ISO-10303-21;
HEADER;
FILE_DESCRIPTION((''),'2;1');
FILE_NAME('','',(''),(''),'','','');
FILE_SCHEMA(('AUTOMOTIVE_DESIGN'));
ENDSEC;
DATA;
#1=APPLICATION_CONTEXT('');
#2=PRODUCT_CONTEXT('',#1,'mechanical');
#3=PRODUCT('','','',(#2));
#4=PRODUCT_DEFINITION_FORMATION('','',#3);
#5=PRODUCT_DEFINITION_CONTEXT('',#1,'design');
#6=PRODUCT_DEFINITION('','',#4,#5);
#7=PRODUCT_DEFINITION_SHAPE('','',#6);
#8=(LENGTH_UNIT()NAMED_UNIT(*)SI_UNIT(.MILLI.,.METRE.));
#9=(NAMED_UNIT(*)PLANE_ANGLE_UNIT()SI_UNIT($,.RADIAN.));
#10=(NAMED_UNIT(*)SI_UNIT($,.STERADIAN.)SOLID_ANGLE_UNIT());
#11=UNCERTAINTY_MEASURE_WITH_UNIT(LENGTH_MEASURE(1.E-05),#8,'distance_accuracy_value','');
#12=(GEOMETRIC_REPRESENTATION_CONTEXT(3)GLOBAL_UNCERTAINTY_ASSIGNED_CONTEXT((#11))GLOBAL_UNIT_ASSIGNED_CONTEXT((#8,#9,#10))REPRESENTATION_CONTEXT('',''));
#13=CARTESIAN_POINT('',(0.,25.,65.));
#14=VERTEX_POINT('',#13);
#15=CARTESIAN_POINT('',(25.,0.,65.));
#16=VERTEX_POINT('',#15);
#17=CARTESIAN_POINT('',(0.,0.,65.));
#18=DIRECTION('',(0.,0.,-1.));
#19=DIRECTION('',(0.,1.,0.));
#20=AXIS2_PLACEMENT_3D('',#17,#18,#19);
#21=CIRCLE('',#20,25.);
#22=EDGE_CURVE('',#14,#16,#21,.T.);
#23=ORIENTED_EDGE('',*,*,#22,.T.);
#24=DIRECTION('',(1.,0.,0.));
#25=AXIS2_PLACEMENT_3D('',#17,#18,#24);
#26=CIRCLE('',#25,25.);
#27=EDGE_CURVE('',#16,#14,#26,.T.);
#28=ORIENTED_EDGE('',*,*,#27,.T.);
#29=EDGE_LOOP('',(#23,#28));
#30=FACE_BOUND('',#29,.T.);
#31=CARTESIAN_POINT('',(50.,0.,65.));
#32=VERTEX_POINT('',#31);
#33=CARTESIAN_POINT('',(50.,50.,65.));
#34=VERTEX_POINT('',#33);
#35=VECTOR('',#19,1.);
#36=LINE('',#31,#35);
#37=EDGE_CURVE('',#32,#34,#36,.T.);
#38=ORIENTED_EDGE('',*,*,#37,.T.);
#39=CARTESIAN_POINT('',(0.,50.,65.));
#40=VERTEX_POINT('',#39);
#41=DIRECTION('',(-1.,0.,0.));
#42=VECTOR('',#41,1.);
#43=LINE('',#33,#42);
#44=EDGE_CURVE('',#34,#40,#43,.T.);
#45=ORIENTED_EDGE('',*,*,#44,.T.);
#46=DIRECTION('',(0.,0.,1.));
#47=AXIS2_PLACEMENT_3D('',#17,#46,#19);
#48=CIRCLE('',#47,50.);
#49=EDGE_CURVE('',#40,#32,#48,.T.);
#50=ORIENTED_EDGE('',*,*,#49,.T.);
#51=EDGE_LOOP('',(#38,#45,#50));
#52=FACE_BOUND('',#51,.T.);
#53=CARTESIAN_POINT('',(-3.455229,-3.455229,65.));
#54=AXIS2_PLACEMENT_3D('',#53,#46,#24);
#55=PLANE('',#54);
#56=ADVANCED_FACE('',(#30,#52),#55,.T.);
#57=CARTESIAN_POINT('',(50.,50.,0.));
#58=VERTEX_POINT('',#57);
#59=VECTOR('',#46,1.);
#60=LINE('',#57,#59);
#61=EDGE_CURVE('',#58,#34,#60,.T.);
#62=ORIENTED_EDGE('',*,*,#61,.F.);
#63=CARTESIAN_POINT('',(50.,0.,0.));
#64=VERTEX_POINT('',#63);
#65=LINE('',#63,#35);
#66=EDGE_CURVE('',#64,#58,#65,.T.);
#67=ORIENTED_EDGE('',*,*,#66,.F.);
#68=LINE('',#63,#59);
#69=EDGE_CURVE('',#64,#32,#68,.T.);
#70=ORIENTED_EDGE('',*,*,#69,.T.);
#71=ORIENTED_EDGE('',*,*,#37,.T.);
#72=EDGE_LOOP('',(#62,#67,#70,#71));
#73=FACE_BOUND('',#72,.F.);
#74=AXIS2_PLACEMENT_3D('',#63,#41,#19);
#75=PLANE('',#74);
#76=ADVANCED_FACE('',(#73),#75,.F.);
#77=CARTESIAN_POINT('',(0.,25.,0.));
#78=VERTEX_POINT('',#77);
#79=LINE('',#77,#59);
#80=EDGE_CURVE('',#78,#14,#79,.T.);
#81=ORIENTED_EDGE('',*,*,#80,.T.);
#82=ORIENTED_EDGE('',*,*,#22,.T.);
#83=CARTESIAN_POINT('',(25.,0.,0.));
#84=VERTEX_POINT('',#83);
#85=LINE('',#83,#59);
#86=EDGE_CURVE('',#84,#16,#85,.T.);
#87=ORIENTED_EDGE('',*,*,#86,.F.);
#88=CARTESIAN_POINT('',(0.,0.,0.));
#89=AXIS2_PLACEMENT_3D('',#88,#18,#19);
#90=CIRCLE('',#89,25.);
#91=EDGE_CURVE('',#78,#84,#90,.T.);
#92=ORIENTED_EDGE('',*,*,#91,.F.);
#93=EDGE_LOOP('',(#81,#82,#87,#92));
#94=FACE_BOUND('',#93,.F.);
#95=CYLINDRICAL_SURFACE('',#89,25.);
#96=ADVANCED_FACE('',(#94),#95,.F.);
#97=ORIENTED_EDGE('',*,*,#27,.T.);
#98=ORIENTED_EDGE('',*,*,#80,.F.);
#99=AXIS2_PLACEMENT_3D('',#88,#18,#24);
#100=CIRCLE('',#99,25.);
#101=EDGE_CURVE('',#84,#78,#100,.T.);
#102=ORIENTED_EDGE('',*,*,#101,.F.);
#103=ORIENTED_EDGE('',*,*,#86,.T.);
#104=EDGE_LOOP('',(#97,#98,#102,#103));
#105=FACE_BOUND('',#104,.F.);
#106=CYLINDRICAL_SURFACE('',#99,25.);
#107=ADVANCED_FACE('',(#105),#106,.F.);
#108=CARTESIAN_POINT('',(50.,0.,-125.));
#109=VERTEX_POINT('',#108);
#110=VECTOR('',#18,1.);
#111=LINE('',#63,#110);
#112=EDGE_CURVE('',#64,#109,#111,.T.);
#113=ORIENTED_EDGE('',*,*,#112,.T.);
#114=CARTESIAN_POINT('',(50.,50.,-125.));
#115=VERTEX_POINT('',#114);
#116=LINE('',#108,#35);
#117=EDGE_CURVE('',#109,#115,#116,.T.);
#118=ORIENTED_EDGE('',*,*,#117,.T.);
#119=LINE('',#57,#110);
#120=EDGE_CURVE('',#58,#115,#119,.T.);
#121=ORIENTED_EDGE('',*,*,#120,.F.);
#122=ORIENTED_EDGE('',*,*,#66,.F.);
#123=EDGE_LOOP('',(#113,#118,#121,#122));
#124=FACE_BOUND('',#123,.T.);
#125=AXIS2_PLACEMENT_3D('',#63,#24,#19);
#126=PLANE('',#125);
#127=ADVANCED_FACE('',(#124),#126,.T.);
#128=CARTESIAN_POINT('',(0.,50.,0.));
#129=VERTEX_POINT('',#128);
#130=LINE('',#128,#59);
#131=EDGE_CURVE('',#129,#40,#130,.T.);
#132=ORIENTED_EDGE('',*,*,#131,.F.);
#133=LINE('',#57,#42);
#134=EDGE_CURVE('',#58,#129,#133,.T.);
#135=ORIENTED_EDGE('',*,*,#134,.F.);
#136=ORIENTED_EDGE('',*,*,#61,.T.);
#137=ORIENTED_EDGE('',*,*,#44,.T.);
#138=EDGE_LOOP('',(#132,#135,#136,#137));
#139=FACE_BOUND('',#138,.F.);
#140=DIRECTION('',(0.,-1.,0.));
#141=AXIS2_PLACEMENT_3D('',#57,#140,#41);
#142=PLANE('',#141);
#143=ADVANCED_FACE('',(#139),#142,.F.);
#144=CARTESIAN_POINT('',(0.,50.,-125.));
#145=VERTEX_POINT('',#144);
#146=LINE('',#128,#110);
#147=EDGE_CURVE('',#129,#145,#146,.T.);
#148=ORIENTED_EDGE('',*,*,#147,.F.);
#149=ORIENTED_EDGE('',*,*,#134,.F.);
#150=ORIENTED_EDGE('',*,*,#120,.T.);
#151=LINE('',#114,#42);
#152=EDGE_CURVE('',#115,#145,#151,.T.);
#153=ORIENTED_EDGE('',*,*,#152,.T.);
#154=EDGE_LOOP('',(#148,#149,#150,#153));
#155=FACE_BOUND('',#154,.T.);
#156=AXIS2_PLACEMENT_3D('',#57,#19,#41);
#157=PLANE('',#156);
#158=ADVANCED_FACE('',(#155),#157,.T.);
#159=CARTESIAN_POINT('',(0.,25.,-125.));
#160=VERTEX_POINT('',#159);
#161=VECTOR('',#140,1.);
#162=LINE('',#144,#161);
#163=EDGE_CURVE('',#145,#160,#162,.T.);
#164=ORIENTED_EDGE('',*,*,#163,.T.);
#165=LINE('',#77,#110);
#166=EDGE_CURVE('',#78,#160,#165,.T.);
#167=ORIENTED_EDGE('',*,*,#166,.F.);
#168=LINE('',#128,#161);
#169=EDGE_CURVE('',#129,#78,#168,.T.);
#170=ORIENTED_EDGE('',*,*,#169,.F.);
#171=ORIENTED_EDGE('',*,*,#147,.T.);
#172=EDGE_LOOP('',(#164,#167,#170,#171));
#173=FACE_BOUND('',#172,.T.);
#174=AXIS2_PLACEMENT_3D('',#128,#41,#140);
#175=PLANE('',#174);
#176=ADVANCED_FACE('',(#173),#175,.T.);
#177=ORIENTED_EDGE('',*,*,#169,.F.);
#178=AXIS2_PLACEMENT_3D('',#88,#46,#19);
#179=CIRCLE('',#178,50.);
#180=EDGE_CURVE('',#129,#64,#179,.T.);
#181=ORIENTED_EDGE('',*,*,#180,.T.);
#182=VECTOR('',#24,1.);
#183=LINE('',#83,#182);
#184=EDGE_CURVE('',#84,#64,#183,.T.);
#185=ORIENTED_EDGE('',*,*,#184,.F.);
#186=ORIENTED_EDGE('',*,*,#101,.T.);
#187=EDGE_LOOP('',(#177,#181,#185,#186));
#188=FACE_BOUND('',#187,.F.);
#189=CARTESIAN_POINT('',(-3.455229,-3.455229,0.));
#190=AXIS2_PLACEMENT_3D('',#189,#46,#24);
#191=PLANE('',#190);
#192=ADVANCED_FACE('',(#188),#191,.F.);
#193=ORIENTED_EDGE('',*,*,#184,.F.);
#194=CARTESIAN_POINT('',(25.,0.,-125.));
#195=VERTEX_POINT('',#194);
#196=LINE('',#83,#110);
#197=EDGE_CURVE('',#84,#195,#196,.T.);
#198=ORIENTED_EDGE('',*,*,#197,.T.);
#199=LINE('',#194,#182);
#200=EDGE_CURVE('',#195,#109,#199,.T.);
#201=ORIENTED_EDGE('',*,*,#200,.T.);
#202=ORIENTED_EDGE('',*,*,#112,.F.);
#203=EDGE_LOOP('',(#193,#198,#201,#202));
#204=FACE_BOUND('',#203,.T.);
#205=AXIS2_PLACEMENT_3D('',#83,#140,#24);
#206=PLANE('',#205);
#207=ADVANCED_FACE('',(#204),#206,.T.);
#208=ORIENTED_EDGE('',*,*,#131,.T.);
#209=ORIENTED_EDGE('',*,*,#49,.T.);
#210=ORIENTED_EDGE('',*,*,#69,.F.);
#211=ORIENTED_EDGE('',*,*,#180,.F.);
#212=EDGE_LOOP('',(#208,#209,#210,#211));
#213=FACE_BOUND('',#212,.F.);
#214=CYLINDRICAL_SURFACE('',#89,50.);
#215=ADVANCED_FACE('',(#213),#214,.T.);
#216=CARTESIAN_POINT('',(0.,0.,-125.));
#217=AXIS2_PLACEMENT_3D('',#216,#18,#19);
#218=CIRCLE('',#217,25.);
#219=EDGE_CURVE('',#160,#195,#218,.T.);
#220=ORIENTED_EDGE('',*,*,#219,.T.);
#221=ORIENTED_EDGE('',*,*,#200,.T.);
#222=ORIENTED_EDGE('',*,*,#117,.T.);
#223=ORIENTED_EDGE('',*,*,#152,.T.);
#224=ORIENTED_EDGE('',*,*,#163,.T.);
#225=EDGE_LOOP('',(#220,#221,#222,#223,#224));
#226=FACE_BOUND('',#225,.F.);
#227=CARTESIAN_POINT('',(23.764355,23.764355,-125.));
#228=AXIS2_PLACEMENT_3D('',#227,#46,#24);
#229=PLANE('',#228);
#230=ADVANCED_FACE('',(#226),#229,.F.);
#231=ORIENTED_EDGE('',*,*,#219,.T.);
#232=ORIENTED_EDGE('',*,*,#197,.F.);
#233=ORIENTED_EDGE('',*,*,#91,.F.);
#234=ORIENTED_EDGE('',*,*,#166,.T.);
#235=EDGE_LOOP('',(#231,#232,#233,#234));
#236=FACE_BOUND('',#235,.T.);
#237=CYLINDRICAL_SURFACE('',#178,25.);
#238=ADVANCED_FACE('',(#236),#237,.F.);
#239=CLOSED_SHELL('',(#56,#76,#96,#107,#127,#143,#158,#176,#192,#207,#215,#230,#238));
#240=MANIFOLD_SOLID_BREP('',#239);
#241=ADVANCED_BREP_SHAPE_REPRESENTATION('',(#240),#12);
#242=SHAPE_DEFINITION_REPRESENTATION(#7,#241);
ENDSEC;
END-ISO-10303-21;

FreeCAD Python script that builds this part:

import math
import FreeCAD as App
import Part
import Sketcher
Q = App.Units.Quantity

doc = App.newDocument("Part")
body = doc.addObject("PartDesign::Body", "Body")

sketch1 = body.newObject("Sketcher::SketchObject", "Sketch")
sketch1.AttachmentSupport = (doc.getObject("XY_Plane"), [""])
sketch1.MapMode = "FlatFace"
sketch1.addGeometry([
    Part.ArcOfCircle(Part.Circle(App.Vector(0, 0, 0), App.Vector(0, 0, 1), 50), math.radians(90), math.radians(360)),
    Part.LineSegment(App.Vector(50, 0, 0), App.Vector(50, 50, 0)),
    Part.LineSegment(App.Vector(50, 50, 0), App.Vector(0, 50, 0)),
    Part.ArcOfCircle(Part.Circle(App.Vector(0, 0, 0), App.Vector(0, 0, 1), 25), math.radians(90), math.radians(360)),
    Part.ArcOfCircle(Part.Circle(App.Vector(0, 0, 0), App.Vector(0, 0, 1), 25), math.radians(0), math.radians(90)),
], False)
sketch1.addConstraint([
    Sketcher.Constraint("Tangent", 0, 2, 1, 1),
    Sketcher.Constraint("Coincident", 1, 2, 2, 1),
    Sketcher.Constraint("Tangent", 2, 2, 0, 1),
    Sketcher.Constraint("Tangent", 3, 1, 4, 2),
    Sketcher.Constraint("Coincident", 4, 1, 3, 2),
    Sketcher.Constraint("Vertical", 1),
    Sketcher.Constraint("Horizontal", 2),
    Sketcher.Constraint("Coincident", 0, 3, -1, 1),
    Sketcher.Constraint("Coincident", 3, 3, -1, 1),
    Sketcher.Constraint("PointOnObject", 3, 1, -2),
    Sketcher.Constraint("PointOnObject", 4, 1, -1),
    Sketcher.Constraint("Radius", 0, Q("50 mm")),
    Sketcher.Constraint("Radius", 3, Q("25 mm")),
])
pad1 = body.newObject("PartDesign::Pad", "Pad")
pad1.Profile = sketch1
pad1.Length = 65

sketch2 = body.newObject("Sketcher::SketchObject", "Sketch001")
sketch2.AttachmentSupport = (doc.getObject("XY_Plane"), [""])
sketch2.MapMode = "FlatFace"
sketch2.addGeometry([
    Part.ArcOfCircle(Part.Circle(App.Vector(0, 0, 0), App.Vector(0, 0, 1), 25), math.radians(0), math.radians(90)),
    Part.LineSegment(App.Vector(25, 0, 0), App.Vector(50, 0, 0)),
    Part.LineSegment(App.Vector(50, 0, 0), App.Vector(50, 50, 0)),
    Part.LineSegment(App.Vector(50, 50, 0), App.Vector(0, 50, 0)),
    Part.LineSegment(App.Vector(0, 50, 0), App.Vector(0, 25, 0)),
], False)
sketch2.addConstraint([
    Sketcher.Constraint("Coincident", 0, 1, 1, 1),
    Sketcher.Constraint("Coincident", 1, 2, 2, 1),
    Sketcher.Constraint("Coincident", 2, 2, 3, 1),
    Sketcher.Constraint("Coincident", 3, 2, 4, 1),
    Sketcher.Constraint("Coincident", 4, 2, 0, 2),
    Sketcher.Constraint("Horizontal", 1),
    Sketcher.Constraint("Vertical", 2),
    Sketcher.Constraint("Horizontal", 3),
    Sketcher.Constraint("Vertical", 4),
    Sketcher.Constraint("Coincident", 0, 3, -1, 1),
    Sketcher.Constraint("PointOnObject", 0, 1, -1),
    Sketcher.Constraint("PointOnObject", 3, 2, -2),
    Sketcher.Constraint("Equal", 3, 2),
    Sketcher.Constraint("Radius", 0, Q("25 mm")),
    Sketcher.Constraint("DistanceX", 1, 1, 1, 2, Q("25 mm")),
])
pad2 = body.newObject("PartDesign::Pad", "Pad001")
pad2.Profile = sketch2
pad2.Length = 125
pad2.Reversed = True

doc.recompute()
